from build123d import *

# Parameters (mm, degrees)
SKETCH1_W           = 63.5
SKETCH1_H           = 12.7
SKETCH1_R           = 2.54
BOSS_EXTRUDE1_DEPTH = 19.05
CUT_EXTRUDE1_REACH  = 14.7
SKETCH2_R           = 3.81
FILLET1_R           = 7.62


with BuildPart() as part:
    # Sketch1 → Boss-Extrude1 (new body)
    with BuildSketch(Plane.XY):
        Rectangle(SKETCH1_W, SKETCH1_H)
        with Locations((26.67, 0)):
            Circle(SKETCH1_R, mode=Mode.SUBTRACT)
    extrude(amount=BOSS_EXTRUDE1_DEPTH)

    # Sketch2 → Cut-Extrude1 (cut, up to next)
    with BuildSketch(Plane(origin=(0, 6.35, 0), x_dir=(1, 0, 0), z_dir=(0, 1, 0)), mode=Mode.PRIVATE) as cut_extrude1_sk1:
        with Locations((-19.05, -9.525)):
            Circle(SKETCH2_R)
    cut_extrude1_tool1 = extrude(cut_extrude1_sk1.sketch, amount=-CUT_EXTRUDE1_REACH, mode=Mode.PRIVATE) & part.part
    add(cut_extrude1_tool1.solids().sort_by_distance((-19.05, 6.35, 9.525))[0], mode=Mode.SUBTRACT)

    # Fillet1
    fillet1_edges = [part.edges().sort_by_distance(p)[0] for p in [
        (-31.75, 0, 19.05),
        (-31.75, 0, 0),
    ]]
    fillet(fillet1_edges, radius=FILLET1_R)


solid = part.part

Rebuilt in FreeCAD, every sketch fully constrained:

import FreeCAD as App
import Part
import Sketcher
from FreeCAD import Vector
Q = App.Units.Quantity


def edges_at(feature, points):
    """Names of the edges that pass closest to the given points."""
    edges = feature.Shape.Edges
    near = lambda p: min(range(len(edges)), key=lambda i: edges[i].distToShape(Part.Vertex(*p))[0])
    return sorted({f"Edge{near(p) + 1}" for p in points})

doc = App.newDocument("Part")
body = doc.addObject("PartDesign::Body", "Body")

# Sketch on XY plane
sketch1 = body.newObject("Sketcher::SketchObject", "Sketch")
sketch1.AttachmentSupport = (doc.getObject("XY_Plane"), [""])
sketch1.MapMode = "FlatFace"
sketch1.addGeometry(Part.LineSegment(Vector(-31.8, 6.3, 0), Vector(-31.8, -6.3, 0)), False)
sketch1.addGeometry(Part.LineSegment(Vector(-31.8, -6.3, 0), Vector(31.8, -6.3, 0)), False)
sketch1.addGeometry(Part.LineSegment(Vector(31.8, -6.3, 0), Vector(31.8, 6.3, 0)), False)
sketch1.addGeometry(Part.LineSegment(Vector(31.8, 6.3, 0), Vector(-31.8, 6.3, 0)), False)
sketch1.addGeometry(Part.Circle(Vector(26.7, 0, 0), Vector(0, 0, 1), 2.5), False)
sketch1.addConstraint(Sketcher.Constraint("Coincident", 0, 2, 1, 1))
sketch1.addConstraint(Sketcher.Constraint("Coincident", 1, 2, 2, 1))
sketch1.addConstraint(Sketcher.Constraint("Coincident", 2, 2, 3, 1))
sketch1.addConstraint(Sketcher.Constraint("Coincident", 3, 2, 0, 1))
sketch1.addConstraint(Sketcher.Constraint("Vertical", 0))
sketch1.addConstraint(Sketcher.Constraint("Horizontal", 1))
sketch1.addConstraint(Sketcher.Constraint("Vertical", 2))
sketch1.addConstraint(Sketcher.Constraint("Horizontal", 3))
sketch1.addConstraint(Sketcher.Constraint("Symmetric", 0, 2, 2, 2, -1, 1))
sketch1.addConstraint(Sketcher.Constraint("PointOnObject", 4, 3, -1))
sketch1.addConstraint(Sketcher.Constraint("Diameter", 4, Q("0.2 in")))
sketch1.addConstraint(Sketcher.Constraint("DistanceX", 1, 1, 1, 2, Q("2.5 in")))
sketch1.addConstraint(Sketcher.Constraint("DistanceY", 0, 2, 0, 1, Q("0.5 in")))
sketch1.addConstraint(Sketcher.Constraint("DistanceX", 0, 2, 4, 3, Q("2.3 in")))
pad1 = body.newObject("PartDesign::Pad", "Pad")
pad1.Profile = sketch1
pad1.Length = Q("0.75 in")

# Sketch on XZ plane
sketch2 = body.newObject("Sketcher::SketchObject", "Sketch001")
sketch2.AttachmentSupport = (doc.getObject("XZ_Plane"), [""])
sketch2.MapMode = "FlatFace"
sketch2.AttachmentOffset = App.Placement(Vector(0, 0, -0.25 * 25.4), App.Rotation())
sketch2.addGeometry(Part.Circle(Vector(-19.1, 9.5, 0), Vector(0, 0, 1), 3.8), False)
sketch2.addConstraint(Sketcher.Constraint("Diameter", 0, Q("0.3 in")))
sketch2.addConstraint(Sketcher.Constraint("DistanceX", 0, 3, -1, 1, Q("0.75 in")))
sketch2.addConstraint(Sketcher.Constraint("DistanceY", -1, 1, 0, 3, Q("0.375 in")))
pocket1 = body.newObject("PartDesign::Pocket", "Pocket")
pocket1.Profile = sketch2
pocket1.Type = "UpToFirst"
pocket1.Reversed = True
doc.recompute()

fillet = body.newObject("PartDesign::Fillet", "Fillet")
fillet.Base = (pocket1, edges_at(pocket1, [(-31.75, 0, 19.05), (-31.75, 0, 0)]))
fillet.Radius = Q("0.3 in")

doc.recompute()
